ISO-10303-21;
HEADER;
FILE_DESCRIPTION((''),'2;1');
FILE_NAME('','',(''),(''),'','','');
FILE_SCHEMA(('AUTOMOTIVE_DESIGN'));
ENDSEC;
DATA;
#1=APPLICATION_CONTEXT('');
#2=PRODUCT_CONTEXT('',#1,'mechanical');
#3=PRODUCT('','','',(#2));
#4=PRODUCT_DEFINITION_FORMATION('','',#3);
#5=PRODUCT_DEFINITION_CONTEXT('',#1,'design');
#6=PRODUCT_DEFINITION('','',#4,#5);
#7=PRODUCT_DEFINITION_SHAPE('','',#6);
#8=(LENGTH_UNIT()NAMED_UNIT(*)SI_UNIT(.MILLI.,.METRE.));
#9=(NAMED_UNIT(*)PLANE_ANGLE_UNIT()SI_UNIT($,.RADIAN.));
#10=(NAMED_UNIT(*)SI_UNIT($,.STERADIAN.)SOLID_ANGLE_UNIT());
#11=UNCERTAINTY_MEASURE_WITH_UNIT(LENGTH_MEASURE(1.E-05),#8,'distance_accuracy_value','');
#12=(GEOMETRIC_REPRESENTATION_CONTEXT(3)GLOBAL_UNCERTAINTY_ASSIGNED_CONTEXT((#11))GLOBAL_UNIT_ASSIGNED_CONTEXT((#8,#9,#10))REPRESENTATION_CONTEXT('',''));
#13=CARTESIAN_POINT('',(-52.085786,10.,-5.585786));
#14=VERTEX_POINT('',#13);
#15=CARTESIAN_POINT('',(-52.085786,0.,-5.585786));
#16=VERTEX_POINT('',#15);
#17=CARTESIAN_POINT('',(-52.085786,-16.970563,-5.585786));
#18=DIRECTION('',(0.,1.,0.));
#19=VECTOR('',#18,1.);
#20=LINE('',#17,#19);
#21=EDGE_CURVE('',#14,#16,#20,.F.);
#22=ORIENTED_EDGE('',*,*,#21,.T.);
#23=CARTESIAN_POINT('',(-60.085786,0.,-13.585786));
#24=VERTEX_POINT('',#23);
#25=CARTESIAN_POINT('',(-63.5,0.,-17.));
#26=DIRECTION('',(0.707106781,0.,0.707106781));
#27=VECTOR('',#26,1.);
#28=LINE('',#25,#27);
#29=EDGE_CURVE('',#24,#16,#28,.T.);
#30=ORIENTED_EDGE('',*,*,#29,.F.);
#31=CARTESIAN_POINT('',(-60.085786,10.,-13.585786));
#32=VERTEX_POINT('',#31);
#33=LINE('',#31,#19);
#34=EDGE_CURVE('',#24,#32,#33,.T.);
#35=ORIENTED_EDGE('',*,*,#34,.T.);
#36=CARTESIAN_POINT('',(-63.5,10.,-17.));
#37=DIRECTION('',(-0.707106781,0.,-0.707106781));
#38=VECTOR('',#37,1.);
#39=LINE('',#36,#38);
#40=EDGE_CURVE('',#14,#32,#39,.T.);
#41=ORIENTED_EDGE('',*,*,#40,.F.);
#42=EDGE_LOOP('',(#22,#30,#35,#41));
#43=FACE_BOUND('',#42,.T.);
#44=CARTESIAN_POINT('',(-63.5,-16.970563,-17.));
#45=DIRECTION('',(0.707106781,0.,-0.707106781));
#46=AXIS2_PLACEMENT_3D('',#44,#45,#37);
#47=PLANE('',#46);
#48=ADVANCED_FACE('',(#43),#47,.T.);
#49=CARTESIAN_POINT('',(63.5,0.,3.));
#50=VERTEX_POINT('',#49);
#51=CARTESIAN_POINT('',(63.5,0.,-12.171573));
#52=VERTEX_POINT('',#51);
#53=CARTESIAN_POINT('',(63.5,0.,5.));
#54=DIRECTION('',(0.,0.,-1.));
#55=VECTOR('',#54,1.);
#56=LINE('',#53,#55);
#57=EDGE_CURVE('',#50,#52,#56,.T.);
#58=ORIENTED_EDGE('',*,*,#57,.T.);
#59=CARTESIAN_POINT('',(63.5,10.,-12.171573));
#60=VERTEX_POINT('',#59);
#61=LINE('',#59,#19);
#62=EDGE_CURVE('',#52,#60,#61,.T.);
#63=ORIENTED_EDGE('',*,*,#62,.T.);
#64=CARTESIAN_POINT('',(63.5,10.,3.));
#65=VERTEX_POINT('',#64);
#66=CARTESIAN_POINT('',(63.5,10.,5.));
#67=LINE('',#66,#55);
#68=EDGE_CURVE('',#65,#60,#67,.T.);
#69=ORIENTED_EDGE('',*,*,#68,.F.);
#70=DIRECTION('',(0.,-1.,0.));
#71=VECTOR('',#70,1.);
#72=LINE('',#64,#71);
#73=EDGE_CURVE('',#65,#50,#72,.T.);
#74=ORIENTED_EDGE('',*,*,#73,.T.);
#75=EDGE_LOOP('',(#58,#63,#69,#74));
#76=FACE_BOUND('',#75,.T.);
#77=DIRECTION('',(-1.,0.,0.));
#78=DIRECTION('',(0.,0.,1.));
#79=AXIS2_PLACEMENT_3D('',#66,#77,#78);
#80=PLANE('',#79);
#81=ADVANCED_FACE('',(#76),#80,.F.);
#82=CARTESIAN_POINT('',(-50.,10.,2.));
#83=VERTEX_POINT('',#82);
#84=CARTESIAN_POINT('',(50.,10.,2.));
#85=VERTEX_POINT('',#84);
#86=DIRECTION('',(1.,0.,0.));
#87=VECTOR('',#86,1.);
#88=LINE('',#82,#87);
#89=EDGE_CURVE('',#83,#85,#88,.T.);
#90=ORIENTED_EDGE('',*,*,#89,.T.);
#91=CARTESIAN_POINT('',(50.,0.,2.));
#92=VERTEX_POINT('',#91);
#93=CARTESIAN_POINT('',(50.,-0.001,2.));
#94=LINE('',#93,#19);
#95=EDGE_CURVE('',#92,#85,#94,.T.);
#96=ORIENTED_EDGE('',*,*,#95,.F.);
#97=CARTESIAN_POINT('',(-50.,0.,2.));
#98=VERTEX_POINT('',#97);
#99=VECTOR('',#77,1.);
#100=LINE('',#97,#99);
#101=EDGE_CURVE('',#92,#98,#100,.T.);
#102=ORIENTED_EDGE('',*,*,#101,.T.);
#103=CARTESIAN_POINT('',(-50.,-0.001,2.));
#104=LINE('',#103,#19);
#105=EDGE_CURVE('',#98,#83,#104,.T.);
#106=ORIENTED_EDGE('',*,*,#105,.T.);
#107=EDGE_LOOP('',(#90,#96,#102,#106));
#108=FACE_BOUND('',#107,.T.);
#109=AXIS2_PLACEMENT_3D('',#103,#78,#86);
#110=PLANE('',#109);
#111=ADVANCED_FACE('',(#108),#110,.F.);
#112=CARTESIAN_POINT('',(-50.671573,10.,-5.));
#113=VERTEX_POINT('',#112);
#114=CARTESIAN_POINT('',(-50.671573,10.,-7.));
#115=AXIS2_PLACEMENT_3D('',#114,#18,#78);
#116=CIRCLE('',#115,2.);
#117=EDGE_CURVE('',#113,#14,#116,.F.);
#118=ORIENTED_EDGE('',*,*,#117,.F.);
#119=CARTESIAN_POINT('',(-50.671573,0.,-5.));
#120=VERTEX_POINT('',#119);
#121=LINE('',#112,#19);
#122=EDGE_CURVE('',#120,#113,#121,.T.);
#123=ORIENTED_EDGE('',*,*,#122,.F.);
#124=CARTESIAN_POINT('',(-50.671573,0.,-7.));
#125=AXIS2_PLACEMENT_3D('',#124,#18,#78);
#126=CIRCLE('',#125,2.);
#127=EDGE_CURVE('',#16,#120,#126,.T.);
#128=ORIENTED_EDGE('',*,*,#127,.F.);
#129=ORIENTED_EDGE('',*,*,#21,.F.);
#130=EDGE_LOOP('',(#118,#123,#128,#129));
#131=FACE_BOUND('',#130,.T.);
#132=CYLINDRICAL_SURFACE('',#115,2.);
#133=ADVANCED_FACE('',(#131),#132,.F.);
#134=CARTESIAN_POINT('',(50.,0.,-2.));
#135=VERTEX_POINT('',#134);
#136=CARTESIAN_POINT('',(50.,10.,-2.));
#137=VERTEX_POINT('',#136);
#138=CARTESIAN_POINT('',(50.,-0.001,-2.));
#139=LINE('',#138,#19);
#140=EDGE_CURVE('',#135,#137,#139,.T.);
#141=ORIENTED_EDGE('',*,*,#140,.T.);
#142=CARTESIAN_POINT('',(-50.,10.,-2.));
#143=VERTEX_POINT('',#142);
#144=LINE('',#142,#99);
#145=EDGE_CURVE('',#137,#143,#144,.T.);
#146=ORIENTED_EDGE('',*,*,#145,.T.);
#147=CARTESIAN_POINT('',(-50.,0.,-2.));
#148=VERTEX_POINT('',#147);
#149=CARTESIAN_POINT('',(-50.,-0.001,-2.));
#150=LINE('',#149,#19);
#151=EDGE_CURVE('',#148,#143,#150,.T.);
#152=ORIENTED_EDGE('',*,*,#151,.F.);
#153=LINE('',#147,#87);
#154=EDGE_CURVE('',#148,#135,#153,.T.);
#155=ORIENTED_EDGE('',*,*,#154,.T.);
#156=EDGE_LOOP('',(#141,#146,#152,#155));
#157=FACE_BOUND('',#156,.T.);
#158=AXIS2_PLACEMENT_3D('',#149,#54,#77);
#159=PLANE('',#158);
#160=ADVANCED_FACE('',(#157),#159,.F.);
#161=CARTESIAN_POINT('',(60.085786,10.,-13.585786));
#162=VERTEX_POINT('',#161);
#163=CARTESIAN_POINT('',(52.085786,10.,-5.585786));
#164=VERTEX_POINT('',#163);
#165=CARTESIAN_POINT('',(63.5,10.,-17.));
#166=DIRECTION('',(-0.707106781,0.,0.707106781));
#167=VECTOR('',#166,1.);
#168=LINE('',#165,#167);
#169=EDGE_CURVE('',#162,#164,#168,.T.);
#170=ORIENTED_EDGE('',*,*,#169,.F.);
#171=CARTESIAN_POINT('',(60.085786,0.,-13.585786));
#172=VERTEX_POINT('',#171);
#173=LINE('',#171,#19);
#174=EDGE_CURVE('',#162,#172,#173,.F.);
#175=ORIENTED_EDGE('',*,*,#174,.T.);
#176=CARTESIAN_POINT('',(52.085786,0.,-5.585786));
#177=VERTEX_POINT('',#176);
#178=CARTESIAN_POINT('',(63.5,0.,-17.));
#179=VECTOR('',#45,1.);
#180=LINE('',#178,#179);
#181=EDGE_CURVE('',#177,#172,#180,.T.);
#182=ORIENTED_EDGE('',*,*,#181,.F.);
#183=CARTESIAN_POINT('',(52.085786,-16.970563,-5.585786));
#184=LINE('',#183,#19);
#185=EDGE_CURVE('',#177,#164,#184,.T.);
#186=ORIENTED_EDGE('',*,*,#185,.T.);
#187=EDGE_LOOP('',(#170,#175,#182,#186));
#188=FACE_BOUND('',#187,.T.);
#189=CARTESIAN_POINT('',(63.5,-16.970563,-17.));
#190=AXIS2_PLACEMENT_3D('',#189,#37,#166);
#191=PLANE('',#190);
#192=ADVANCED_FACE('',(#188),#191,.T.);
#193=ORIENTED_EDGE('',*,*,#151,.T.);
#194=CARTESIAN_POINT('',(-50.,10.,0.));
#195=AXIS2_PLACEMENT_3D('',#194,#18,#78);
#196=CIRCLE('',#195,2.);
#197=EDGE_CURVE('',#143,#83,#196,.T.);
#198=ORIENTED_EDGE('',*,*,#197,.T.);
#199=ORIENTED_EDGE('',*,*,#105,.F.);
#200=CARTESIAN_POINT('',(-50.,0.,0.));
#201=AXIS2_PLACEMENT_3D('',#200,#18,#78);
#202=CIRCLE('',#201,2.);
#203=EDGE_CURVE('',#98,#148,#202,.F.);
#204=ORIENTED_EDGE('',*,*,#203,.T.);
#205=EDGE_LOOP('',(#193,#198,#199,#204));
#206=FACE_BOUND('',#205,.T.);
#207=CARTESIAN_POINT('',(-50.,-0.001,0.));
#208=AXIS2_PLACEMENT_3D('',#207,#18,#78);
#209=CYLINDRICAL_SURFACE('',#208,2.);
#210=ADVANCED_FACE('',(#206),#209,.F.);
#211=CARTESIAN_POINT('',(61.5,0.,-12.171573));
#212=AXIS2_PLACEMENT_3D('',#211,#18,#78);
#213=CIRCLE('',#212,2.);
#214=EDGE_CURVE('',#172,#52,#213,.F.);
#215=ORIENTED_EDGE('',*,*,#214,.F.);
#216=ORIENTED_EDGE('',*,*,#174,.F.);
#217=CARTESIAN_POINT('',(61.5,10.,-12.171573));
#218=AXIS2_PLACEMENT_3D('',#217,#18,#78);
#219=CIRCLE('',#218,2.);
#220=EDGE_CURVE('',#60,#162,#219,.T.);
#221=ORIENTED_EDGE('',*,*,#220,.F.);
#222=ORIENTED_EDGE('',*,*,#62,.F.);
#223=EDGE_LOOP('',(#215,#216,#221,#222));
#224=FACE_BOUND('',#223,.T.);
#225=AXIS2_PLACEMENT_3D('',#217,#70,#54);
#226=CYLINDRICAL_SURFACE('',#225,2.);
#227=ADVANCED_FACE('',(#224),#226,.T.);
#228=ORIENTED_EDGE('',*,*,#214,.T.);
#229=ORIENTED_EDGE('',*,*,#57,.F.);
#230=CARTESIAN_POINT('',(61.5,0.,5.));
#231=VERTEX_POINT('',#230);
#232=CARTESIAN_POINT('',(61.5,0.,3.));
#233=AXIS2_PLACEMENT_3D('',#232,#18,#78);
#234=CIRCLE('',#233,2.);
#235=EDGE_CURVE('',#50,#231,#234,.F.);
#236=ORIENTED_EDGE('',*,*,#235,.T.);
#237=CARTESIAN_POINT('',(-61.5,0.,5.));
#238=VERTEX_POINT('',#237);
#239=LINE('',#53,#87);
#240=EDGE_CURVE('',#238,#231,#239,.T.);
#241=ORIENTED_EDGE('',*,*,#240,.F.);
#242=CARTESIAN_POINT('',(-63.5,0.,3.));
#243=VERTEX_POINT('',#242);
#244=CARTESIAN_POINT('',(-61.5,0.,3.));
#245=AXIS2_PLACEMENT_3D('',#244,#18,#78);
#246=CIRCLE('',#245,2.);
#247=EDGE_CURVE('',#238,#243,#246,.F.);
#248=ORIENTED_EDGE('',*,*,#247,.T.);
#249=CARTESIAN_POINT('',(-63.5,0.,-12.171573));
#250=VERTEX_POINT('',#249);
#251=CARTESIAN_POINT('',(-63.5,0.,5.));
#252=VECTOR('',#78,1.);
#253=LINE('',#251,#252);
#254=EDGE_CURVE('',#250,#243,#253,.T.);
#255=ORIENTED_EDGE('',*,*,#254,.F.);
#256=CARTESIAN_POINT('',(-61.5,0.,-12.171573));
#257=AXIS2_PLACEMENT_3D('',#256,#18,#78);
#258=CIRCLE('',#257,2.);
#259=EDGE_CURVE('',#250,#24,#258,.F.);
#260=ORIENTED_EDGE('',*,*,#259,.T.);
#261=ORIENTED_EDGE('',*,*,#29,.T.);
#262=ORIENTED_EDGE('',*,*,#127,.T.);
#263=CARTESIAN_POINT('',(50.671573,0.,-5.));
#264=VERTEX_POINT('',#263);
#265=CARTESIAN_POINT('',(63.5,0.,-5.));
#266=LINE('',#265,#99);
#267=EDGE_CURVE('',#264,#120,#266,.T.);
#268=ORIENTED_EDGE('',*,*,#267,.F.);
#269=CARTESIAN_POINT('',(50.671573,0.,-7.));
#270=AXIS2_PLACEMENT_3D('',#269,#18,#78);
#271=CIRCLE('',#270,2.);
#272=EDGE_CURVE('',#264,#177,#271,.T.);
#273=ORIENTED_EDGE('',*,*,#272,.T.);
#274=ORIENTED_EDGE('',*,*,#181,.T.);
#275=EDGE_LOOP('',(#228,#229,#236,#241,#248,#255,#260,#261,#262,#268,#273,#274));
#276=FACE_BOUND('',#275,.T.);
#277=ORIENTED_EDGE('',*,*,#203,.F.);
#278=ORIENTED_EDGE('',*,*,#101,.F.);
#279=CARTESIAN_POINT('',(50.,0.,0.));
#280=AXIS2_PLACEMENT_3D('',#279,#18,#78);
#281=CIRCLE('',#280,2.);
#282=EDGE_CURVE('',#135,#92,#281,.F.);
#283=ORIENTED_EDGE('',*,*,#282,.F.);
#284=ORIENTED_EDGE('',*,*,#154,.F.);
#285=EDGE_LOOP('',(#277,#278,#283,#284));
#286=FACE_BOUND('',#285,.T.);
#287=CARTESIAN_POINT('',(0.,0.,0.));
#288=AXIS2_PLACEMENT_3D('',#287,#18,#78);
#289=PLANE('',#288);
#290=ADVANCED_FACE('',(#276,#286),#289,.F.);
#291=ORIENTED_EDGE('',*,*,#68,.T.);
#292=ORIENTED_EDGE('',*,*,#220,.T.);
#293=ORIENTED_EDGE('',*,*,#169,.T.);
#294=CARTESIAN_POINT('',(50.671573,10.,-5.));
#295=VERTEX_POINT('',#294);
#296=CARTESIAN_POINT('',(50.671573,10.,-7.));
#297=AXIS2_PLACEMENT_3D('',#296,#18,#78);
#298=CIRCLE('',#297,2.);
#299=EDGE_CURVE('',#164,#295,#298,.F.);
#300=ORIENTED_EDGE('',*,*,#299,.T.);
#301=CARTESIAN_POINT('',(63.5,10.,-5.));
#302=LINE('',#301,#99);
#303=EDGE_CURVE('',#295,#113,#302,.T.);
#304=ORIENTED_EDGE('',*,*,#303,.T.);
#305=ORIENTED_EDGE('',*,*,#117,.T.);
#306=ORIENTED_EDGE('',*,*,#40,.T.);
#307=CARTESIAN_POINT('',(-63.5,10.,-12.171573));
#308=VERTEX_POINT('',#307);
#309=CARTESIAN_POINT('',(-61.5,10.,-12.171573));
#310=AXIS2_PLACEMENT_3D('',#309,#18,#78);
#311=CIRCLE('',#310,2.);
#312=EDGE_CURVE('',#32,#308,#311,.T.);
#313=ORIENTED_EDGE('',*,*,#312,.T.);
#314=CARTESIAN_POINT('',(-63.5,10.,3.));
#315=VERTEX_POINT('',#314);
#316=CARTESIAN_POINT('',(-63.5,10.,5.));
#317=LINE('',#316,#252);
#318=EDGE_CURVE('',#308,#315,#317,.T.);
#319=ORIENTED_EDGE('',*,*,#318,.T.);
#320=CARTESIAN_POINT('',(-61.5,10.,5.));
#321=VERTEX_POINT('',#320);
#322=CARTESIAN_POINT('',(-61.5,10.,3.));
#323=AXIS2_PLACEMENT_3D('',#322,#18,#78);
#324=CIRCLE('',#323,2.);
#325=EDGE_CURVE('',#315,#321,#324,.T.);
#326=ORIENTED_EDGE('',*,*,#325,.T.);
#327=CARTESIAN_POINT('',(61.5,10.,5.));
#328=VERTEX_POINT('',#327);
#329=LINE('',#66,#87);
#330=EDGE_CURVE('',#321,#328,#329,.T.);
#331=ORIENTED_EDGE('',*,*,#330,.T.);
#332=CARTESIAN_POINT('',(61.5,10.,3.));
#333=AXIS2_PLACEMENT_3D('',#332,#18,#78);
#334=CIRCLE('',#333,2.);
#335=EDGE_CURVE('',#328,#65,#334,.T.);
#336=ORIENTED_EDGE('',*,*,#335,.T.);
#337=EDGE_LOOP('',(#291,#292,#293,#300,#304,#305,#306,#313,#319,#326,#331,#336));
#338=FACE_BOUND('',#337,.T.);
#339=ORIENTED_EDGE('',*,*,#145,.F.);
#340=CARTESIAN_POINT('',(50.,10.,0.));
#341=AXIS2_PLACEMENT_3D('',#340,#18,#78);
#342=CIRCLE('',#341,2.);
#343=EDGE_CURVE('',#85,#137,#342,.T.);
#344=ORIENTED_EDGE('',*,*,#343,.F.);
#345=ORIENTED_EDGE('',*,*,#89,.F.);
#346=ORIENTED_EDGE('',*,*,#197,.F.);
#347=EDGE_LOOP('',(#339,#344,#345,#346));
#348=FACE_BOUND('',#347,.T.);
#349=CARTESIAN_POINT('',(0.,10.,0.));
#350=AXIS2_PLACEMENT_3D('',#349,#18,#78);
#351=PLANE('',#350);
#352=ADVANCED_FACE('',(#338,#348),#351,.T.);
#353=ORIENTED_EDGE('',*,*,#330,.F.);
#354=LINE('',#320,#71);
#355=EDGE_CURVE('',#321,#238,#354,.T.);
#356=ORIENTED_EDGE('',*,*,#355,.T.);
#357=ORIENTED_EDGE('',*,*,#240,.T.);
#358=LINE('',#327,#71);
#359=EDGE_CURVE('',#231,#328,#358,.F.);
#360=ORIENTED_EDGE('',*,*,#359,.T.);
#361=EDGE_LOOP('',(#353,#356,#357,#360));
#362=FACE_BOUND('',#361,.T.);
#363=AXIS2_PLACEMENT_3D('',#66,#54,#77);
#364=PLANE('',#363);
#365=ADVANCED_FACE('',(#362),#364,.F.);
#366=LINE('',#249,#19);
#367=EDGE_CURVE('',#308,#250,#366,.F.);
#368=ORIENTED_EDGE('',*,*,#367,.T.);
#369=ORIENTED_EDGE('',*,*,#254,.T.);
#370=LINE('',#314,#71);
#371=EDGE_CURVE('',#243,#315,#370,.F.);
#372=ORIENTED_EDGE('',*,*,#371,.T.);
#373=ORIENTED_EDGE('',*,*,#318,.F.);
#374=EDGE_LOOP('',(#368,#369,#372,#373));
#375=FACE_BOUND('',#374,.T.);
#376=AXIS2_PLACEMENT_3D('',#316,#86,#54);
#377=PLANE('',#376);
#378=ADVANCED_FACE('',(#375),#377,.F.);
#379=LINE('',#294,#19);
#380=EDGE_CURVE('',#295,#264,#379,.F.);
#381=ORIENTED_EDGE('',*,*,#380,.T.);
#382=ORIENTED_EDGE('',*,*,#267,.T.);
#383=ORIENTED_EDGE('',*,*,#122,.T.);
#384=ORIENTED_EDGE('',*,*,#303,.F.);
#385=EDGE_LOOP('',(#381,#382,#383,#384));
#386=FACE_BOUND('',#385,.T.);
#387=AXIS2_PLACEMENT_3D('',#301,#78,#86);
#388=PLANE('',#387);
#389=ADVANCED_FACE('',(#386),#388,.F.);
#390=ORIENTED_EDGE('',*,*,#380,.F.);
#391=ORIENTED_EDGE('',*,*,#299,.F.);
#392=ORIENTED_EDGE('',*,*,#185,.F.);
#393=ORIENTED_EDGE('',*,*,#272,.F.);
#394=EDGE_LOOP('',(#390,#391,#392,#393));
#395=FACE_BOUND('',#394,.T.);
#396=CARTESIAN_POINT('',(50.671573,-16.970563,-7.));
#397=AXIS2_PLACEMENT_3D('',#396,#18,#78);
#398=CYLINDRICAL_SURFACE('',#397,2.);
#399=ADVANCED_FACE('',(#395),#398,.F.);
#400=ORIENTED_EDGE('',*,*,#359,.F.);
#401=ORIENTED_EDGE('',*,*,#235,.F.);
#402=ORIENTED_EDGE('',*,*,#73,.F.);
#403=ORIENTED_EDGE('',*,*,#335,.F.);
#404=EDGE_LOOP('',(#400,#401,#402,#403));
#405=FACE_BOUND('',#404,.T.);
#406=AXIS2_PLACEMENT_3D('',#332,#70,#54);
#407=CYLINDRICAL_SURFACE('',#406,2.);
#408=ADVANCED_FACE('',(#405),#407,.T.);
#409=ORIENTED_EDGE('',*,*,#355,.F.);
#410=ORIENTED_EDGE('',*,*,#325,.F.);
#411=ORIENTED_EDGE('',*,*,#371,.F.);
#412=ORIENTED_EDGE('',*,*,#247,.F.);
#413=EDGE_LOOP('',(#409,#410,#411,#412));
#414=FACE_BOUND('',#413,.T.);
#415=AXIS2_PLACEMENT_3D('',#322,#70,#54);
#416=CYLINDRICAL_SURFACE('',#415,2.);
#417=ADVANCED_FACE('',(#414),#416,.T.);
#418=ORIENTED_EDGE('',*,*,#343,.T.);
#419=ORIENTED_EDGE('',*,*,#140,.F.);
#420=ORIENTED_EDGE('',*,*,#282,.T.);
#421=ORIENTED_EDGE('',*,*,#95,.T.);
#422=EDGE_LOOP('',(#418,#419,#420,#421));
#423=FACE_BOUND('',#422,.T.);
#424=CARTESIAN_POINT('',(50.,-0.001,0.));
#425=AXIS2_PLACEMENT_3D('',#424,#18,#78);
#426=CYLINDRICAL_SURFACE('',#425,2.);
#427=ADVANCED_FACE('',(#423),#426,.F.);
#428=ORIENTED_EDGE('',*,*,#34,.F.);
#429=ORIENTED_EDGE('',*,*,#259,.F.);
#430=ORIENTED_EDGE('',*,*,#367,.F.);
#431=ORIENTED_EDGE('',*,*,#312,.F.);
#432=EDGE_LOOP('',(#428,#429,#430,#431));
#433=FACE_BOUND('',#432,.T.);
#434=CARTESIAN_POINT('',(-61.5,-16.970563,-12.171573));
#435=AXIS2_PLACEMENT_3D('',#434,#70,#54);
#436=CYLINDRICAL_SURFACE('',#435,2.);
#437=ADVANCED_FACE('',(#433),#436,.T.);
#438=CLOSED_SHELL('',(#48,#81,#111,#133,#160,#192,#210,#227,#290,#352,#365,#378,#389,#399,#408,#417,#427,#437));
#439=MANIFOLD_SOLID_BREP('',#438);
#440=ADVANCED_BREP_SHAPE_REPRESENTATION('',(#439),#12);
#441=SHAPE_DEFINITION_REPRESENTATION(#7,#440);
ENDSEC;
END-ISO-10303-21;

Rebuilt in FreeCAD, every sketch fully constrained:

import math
import FreeCAD as App
import Part
import Sketcher
from FreeCAD import Vector
Q = App.Units.Quantity


def edges_at(feature, points):
    """Names of the edges that pass closest to the given points."""
    edges = feature.Shape.Edges
    near = lambda p: min(range(len(edges)), key=lambda i: edges[i].distToShape(Part.Vertex(*p))[0])
    return sorted({f"Edge{near(p) + 1}" for p in points})


def add_polygon(sketch, points):
    """Adds a closed chain of lines whose ends are joined by coincident constraints."""
    first, n = sketch.GeometryCount, len(points)
    for a, b in zip(points, points[1:] + points[:1]):
        sketch.addGeometry(Part.LineSegment(App.Vector(*a, 0), App.Vector(*b, 0)), False)
    for i in range(n):
        sketch.addConstraint(Sketcher.Constraint("Coincident", first + i, 2, first + (i + 1) % n, 1))

doc = App.newDocument("Part")
params = doc.addObject("Spreadsheet::Sheet", "Params")
for row, (alias, value) in enumerate([
    ("sketch1_width", "127 mm"),
    ("sketch1_height", "10 mm"),
    ("pad1_length", "10 mm"),
    ("sketch2_width", "12 mm"),
    ("pad2_length", "10 mm"),
    ("fillet_radius", "2 mm"),
    ("sketch3_radius", "2 mm"),
    ("sketch3_width", "100 mm"),
], start=1):
    params.set(f"A{row}", alias)
    params.set(f"B{row}", "=" + value)
    params.setAlias(f"B{row}", alias)

body = doc.addObject("PartDesign::Body", "Body")

# Sketch on XZ plane
sketch1 = body.newObject("Sketcher::SketchObject", "Sketch")
sketch1.AttachmentSupport = (doc.getObject("XZ_Plane"), [""])
sketch1.MapMode = "FlatFace"
add_polygon(sketch1, [(-64, -5), (-64, 5), (64, 5), (64, -5)])  # lines 0-3
sketch1.addConstraint(Sketcher.Constraint("Vertical", 0))
sketch1.addConstraint(Sketcher.Constraint("Horizontal", 1))
sketch1.addConstraint(Sketcher.Constraint("Vertical", 2))
sketch1.addConstraint(Sketcher.Constraint("Horizontal", 3))
sketch1.addConstraint(Sketcher.Constraint("Symmetric", 0, 2, 2, 2, -1, 1))
sketch1.addConstraint(Sketcher.Constraint("DistanceX", 1, 1, 1, 2, Q("127 mm")))
sketch1.addConstraint(Sketcher.Constraint("DistanceY", 0, 1, 0, 2, Q("10 mm")))
sketch1.setExpression("Constraints[9]", "Params.sketch1_width")
sketch1.setExpression("Constraints[10]", "Params.sketch1_height")
pad1 = body.newObject("PartDesign::Pad", "Pad")
pad1.Profile = sketch1
pad1.setExpression("Length", "Params.pad1_length")
pad1.Reversed = True

# Sketch on XZ plane
sketch2 = body.newObject("Sketcher::SketchObject", "Sketch001")
sketch2.AttachmentSupport = (doc.getObject("XZ_Plane"), [""])
sketch2.MapMode = "FlatFace"
sketch2.AttachmentOffset = App.Placement(Vector(0, 0, -10), App.Rotation())
add_polygon(sketch2, [(-64, -17), (-64, -5), (-52, -5)])  # lines 0-2
add_polygon(sketch2, [(52, -5), (64, -5), (64, -17)])  # lines 3-5
sketch2.addConstraint(Sketcher.Constraint("Vertical", 0))
sketch2.addConstraint(Sketcher.Constraint("Horizontal", 1))
sketch2.addConstraint(Sketcher.Constraint("Horizontal", 3))
sketch2.addConstraint(Sketcher.Constraint("Vertical", 4))
sketch2.addConstraint(Sketcher.Constraint("Symmetric", 0, 2, 3, 2, -2))
sketch2.addConstraint(Sketcher.Constraint("Perpendicular", 2, 5))
sketch2.addConstraint(Sketcher.Constraint("Horizontal", 2, 2, 4, 2))
sketch2.addConstraint(Sketcher.Constraint("Equal", 1, 3))
sketch2.addConstraint(Sketcher.Constraint("DistanceX", 1, 1, 1, 2, Q("12 mm")))
sketch2.addConstraint(Sketcher.Constraint("DistanceY", 0, 2, -1, 1, Q("5 mm")))
sketch2.addConstraint(Sketcher.Constraint("DistanceX", 1, 2, 3, 2, Q("115 mm")))
sketch2.setExpression("Constraints[14]", "Params.sketch2_width")
pad2 = body.newObject("PartDesign::Pad", "Pad001")
pad2.Profile = sketch2
pad2.setExpression("Length", "Params.pad2_length")
doc.recompute()

fillet = body.newObject("PartDesign::Fillet", "Fillet")
fillet.Base = (pad2, edges_at(pad2, [
    (-51.5, 5, -5),
    (-63.5, 5, -17),
    (51.5, 5, -5),
    (63.5, 5, -17),
    (63.5, 5, 5),
    (-63.5, 5, 5),
]))
fillet.setExpression("Radius", "Params.fillet_radius")

# Sketch on XZ plane
sketch3 = body.newObject("Sketcher::SketchObject", "Sketch002")
sketch3.AttachmentSupport = (doc.getObject("XZ_Plane"), [""])
sketch3.MapMode = "FlatFace"
sketch3.AttachmentOffset = App.Placement(Vector(0, 0, -10), App.Rotation())
sketch3.addGeometry(Part.LineSegment(Vector(50, -2, 0), Vector(-50, -2, 0)), False)
sketch3.addGeometry(Part.ArcOfCircle(Part.Circle(Vector(-50, 0, 0), Vector(0, 0, 1), 2), math.radians(90), math.radians(270)), False)
sketch3.addGeometry(Part.LineSegment(Vector(-50, 2, 0), Vector(50, 2, 0)), False)
sketch3.addGeometry(Part.ArcOfCircle(Part.Circle(Vector(50, 0, 0), Vector(0, 0, 1), 2), math.radians(-90), math.radians(90)), False)
sketch3.addConstraint(Sketcher.Constraint("Tangent", 0, 2, 1, 2))
sketch3.addConstraint(Sketcher.Constraint("Tangent", 1, 1, 2, 1))
sketch3.addConstraint(Sketcher.Constraint("Tangent", 2, 2, 3, 2))
sketch3.addConstraint(Sketcher.Constraint("Tangent", 3, 1, 0, 1))
sketch3.addConstraint(Sketcher.Constraint("Horizontal", 0))
sketch3.addConstraint(Sketcher.Constraint("Horizontal", 2))
sketch3.addConstraint(Sketcher.Constraint("Symmetric", 1, 3, 3, 3, -1, 1))
sketch3.addConstraint(Sketcher.Constraint("Radius", 1, Q("2 mm")))
sketch3.addConstraint(Sketcher.Constraint("DistanceX", 0, 2, 0, 1, Q("100 mm")))
sketch3.setExpression("Constraints[7]", "Params.sketch3_radius")
sketch3.setExpression("Constraints[8]", "Params.sketch3_width")
pocket1 = body.newObject("PartDesign::Pocket", "Pocket")
pocket1.Profile = sketch3
pocket1.Type = "UpToFirst"
pocket1.Reversed = True

doc.recompute()
